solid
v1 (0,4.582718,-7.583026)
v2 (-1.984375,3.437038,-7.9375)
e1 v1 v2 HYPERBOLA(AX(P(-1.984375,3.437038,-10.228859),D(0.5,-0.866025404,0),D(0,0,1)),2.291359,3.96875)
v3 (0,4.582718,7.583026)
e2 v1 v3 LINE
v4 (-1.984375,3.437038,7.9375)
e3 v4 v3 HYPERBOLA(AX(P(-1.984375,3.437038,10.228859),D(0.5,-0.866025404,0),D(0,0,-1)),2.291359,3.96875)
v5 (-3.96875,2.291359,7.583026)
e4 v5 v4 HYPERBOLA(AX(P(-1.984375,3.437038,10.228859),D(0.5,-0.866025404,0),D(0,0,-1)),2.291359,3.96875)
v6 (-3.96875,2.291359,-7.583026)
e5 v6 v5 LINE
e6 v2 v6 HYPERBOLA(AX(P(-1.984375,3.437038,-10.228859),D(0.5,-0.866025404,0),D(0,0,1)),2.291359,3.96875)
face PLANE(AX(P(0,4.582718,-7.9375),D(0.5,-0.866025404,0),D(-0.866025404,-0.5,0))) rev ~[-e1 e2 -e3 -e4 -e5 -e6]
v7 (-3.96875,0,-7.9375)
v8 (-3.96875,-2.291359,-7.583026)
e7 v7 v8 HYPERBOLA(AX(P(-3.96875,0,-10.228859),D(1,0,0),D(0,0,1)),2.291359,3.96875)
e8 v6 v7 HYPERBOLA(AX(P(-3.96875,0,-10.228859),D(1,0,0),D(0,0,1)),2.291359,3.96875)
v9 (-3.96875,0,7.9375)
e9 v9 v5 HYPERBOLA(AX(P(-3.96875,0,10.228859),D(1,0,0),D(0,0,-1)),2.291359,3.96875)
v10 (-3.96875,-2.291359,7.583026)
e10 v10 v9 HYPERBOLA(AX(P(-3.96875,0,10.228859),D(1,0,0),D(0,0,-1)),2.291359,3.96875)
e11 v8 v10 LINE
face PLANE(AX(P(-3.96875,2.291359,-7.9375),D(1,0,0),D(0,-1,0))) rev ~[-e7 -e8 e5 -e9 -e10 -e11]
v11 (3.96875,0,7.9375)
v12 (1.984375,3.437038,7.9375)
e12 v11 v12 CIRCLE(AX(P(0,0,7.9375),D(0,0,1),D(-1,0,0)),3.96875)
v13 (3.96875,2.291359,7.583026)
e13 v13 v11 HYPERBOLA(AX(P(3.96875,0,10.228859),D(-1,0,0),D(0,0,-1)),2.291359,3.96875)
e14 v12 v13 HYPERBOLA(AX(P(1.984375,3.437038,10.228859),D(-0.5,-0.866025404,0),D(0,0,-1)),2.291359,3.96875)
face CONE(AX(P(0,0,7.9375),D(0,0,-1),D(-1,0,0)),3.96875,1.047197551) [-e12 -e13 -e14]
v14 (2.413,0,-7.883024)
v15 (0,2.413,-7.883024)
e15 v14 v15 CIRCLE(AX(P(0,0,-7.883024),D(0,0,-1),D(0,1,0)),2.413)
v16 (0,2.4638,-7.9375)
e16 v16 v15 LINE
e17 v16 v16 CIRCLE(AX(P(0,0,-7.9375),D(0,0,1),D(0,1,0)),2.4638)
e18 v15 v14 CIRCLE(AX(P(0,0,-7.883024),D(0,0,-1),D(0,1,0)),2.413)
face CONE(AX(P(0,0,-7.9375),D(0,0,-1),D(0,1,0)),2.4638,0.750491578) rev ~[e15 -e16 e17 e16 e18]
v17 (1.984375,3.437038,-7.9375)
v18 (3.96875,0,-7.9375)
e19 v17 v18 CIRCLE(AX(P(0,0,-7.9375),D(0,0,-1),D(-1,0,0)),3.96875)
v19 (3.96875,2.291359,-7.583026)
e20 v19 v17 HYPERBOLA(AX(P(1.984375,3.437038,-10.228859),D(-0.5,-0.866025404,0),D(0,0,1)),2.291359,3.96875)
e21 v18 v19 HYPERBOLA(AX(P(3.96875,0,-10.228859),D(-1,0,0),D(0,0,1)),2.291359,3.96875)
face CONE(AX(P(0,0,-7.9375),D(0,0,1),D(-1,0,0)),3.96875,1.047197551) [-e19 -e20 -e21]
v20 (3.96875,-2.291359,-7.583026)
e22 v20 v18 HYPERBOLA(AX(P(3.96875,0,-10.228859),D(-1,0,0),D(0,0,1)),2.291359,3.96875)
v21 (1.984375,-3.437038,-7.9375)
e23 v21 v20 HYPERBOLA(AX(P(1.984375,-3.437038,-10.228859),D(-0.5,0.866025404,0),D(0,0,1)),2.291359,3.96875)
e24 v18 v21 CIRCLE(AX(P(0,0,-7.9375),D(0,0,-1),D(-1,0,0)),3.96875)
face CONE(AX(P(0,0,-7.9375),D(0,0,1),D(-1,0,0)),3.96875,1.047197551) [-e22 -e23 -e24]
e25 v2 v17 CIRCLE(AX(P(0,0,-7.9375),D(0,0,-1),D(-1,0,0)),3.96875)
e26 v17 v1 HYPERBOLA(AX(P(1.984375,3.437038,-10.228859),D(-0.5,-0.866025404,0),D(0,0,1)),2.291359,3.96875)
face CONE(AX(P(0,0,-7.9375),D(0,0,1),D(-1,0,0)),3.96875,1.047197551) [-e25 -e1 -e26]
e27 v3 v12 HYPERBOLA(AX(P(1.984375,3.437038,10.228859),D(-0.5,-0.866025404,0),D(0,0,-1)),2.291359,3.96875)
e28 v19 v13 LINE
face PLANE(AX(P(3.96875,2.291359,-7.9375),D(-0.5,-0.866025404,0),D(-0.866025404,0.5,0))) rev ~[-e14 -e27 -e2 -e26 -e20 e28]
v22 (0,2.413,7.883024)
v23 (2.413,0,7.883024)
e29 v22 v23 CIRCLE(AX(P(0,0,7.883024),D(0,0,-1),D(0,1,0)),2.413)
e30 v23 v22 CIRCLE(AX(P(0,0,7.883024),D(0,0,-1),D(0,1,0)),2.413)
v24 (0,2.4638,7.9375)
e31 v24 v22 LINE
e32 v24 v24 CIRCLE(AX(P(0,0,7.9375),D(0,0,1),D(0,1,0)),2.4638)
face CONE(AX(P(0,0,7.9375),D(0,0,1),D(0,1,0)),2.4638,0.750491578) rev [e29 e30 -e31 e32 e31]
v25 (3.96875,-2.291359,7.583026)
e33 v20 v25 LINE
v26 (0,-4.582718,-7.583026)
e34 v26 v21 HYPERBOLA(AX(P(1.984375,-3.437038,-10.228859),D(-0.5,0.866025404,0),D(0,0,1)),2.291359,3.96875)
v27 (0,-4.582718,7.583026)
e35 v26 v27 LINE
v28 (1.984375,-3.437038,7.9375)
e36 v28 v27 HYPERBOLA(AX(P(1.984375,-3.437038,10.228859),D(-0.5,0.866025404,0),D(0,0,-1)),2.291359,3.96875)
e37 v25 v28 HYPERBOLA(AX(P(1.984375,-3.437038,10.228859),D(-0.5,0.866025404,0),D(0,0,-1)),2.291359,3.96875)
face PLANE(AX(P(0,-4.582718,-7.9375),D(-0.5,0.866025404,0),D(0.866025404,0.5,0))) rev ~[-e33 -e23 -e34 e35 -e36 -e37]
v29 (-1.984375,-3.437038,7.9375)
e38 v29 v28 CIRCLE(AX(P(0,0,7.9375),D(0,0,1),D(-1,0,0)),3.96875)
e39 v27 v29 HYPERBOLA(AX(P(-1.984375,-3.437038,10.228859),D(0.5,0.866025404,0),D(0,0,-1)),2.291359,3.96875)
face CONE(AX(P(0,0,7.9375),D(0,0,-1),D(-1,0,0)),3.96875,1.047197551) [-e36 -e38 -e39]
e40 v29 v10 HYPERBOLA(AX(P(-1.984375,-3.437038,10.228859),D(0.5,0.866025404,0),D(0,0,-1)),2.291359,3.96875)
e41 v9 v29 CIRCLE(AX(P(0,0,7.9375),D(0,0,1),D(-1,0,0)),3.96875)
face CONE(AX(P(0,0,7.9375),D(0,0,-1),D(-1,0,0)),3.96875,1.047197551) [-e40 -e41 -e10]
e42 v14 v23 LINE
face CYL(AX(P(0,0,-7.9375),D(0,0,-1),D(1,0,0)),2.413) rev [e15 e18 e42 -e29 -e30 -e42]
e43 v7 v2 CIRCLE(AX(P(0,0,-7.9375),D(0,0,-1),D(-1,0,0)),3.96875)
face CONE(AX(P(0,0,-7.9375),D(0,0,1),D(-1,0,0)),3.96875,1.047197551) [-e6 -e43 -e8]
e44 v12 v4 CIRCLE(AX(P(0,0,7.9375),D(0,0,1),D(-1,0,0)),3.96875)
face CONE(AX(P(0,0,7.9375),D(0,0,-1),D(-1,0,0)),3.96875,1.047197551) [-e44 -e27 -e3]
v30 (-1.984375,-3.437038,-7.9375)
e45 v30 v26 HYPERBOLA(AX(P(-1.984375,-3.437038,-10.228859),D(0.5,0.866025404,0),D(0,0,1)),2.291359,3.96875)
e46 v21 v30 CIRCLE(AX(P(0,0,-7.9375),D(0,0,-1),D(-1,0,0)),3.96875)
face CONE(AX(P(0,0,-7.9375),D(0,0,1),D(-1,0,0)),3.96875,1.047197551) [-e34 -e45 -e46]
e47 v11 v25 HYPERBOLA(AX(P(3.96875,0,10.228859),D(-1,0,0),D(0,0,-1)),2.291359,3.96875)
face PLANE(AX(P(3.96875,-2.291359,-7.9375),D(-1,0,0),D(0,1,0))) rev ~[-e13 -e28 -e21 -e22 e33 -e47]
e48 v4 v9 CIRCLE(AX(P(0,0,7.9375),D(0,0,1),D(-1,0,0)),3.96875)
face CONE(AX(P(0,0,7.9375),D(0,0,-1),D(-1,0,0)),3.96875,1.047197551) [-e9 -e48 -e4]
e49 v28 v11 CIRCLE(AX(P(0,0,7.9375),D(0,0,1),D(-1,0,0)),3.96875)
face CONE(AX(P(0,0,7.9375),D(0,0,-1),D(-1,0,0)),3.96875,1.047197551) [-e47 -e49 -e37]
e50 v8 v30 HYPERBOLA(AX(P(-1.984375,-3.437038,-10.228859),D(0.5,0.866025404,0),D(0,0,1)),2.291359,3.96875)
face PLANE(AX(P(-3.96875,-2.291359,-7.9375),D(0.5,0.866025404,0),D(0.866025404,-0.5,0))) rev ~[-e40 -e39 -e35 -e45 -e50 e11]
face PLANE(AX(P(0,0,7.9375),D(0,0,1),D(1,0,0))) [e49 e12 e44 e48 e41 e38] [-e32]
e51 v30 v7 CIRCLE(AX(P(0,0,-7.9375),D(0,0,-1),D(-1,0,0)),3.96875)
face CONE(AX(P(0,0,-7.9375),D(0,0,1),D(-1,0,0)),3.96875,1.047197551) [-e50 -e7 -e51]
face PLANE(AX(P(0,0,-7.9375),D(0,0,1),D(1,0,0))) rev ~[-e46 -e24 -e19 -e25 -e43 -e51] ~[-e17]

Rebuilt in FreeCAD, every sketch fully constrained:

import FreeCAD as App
import Part
import Sketcher
Q = App.Units.Quantity


def faces_at(feature, points):
    """Names of the faces that lie closest to the given points."""
    faces = feature.Shape.Faces
    near = lambda p: min(range(len(faces)), key=lambda i: faces[i].distToShape(Part.Vertex(*p))[0])
    return sorted({f"Face{near(p) + 1}" for p in points})


def add_polygon(sketch, points):
    """Adds a closed chain of lines whose ends are joined by coincident constraints."""
    first, n = sketch.GeometryCount, len(points)
    for a, b in zip(points, points[1:] + points[:1]):
        sketch.addGeometry(Part.LineSegment(App.Vector(*a, 0), App.Vector(*b, 0)), False)
    for i in range(n):
        sketch.addConstraint(Sketcher.Constraint("Coincident", first + i, 2, first + (i + 1) % n, 1))

doc = App.newDocument("Part")
params = doc.addObject("Spreadsheet::Sheet", "Params")
for row, (alias, value) in enumerate([
    ("sketch1_diameter", "0.19 in"),
    ("pad1_length", "0.3125 in"),
    ("pad1_length2", "0.3125 in"),
    ("sketch2_width", "0.097 in"),
    ("groove_angle", "360 deg"),
    ("sketch3_diameter", "0.3125 in"),
    ("pad2_length", "17.993172 mm"),
    ("draft_angle", "60 deg"),
    ("sketch4_diameter", "0.3125 in"),
    ("pad3_length", "17.993172 mm"),
    ("draft2_angle", "60 deg"),
], start=1):
    params.set(f"A{row}", alias)
    params.set(f"B{row}", "=" + value)
    params.setAlias(f"B{row}", alias)

body = doc.addObject("PartDesign::Body", "Body")

sketch1 = doc.addObject("Sketcher::SketchObject", "Sketch")
body.addObject(sketch1)
sketch1.AttachmentSupport = (doc.XY_Plane, [""])
sketch1.MapMode = "FlatFace"
add_polygon(sketch1, [(0, 4.582718), (-3.96875, 2.291359), (-3.96875, -2.291359), (0, -4.582718), (3.96875, -2.291359), (3.96875, 2.291359)])
sketch1.addGeometry(Part.Circle(App.Vector(0, 0, 0), App.Vector(0, 0, 1), 2.413), False)
sketch1.addConstraint(Sketcher.Constraint("Vertical", 1))
sketch1.addConstraint(Sketcher.Constraint("Vertical", 4))
sketch1.addConstraint(Sketcher.Constraint("Coincident", 6, 3, -1, 1))
sketch1.addConstraint(Sketcher.Constraint("Symmetric", 0, 2, 3, 2, -1, 1))
sketch1.addConstraint(Sketcher.Constraint("Symmetric", 2, 2, 5, 2, -1, 1))
sketch1.addConstraint(Sketcher.Constraint("PointOnObject", 2, 2, -2))
sketch1.addConstraint(Sketcher.Constraint("Parallel", 2, 5))
sketch1.addConstraint(Sketcher.Constraint("Horizontal", 1, 2, 3, 2))
sketch1.addConstraint(Sketcher.Constraint("Diameter", 6, Q("0.19 in")))
sketch1.addConstraint(Sketcher.Constraint("Angle", 0, Q("-150 deg")))
sketch1.addConstraint(Sketcher.Constraint("DistanceX", 0, 2, -1, 1, Q("0.15625 in")))
sketch1.addConstraint(Sketcher.Constraint("DistanceY", 1, 2, 1, 1, 4.582718))
sketch1.setExpression("Constraints[14]", "Params.sketch1_diameter")
pad1 = doc.addObject("PartDesign::Pad", "Pad")
body.addObject(pad1)
pad1.Profile = sketch1
pad1.Type = "TwoLengths"
pad1.setExpression("Length", "Params.pad1_length")
pad1.setExpression("Length2", "Params.pad1_length2")

sketch2 = doc.addObject("Sketcher::SketchObject", "Sketch001")
body.addObject(sketch2)
sketch2.AttachmentSupport = (doc.YZ_Plane, [""])
sketch2.MapMode = "FlatFace"
add_polygon(sketch2, [(0, -7.9375), (2.4638, -7.9375), (0, -5.295398)])
sketch2.addConstraint(Sketcher.Constraint("Horizontal", 0))
sketch2.addConstraint(Sketcher.Constraint("Vertical", 2))
sketch2.addConstraint(Sketcher.Constraint("PointOnObject", 1, 2, -2))
sketch2.addConstraint(Sketcher.Constraint("Angle", 1, Q("133 deg")))
sketch2.addConstraint(Sketcher.Constraint("DistanceX", 0, 1, 0, 2, Q("0.097 in")))
sketch2.addConstraint(Sketcher.Constraint("DistanceY", 0, 2, -1, 1, Q("0.3125 in")))
sketch2.setExpression("Constraints[7]", "Params.sketch2_width")
groove = doc.addObject("PartDesign::Groove", "Groove")
body.addObject(groove)
groove.Profile = sketch2
groove.ReferenceAxis = (sketch2, ["V_Axis"])
groove.setExpression("Angle", "Params.groove_angle")
body2 = doc.addObject("PartDesign::Body", "Body001")

sketch3 = doc.addObject("Sketcher::SketchObject", "Sketch002")
body2.addObject(sketch3)
sketch3.AttachmentSupport = (doc.getObject("XY_Plane001"), [""])
sketch3.MapMode = "FlatFace"
sketch3.AttachmentOffset = App.Placement(App.Vector(0, 0, -0.3125 * 25.4), App.Rotation())
add_polygon(sketch3, [(38.132, 38.746), (38.132, -38.746), (-38.132, -38.746), (-38.132, 38.746)])
sketch3.addGeometry(Part.Circle(App.Vector(0, 0, 0), App.Vector(0, 0, 1), 3.96875), False)
sketch3.addConstraint(Sketcher.Constraint("Vertical", 0))
sketch3.addConstraint(Sketcher.Constraint("Horizontal", 1))
sketch3.addConstraint(Sketcher.Constraint("Vertical", 2))
sketch3.addConstraint(Sketcher.Constraint("Horizontal", 3))
sketch3.addConstraint(Sketcher.Constraint("Coincident", 4, 3, -1, 1))
sketch3.addConstraint(Sketcher.Constraint("Symmetric", 0, 2, 2, 2, -1, 1))
sketch3.addConstraint(Sketcher.Constraint("Diameter", 4, Q("0.3125 in")))
sketch3.addConstraint(Sketcher.Constraint("DistanceX", 1, 2, 1, 1, 76.264))
sketch3.addConstraint(Sketcher.Constraint("DistanceY", 0, 2, 0, 1, 77.492))
sketch3.setExpression("Constraints[10]", "Params.sketch3_diameter")
pad2 = doc.addObject("PartDesign::Pad", "Pad001")
body2.addObject(pad2)
pad2.Profile = sketch3
pad2.setExpression("Length", "Params.pad2_length")
doc.recompute()

datumplane = doc.addObject("PartDesign::Plane", "DatumPlane")
body2.addObject(datumplane)
datumplane.AttachmentSupport = (doc.getObject("XY_Plane001"), [""])
datumplane.MapMode = "FlatFace"
datumplane.AttachmentOffset = App.Placement(App.Vector(0, 0, -0.3125 * 25.4), App.Rotation())
draft = doc.addObject("PartDesign::Draft", "Draft")
body2.addObject(draft)
draft.Base = (pad2, faces_at(pad2, [
    (0, -38.746, 1.059),
    (-38.132, 0, 1.059),
    (0, 38.746, 1.059),
    (38.132, 0, 1.059),
    (3.969, 0, 1.059),
]))
draft.NeutralPlane = (datumplane, [""])
draft.setExpression("Angle", "Params.draft_angle")
draft.Reversed = False
doc.recompute()

boolean = doc.addObject("PartDesign::Boolean", "Boolean")
body.addObject(boolean)
boolean.Type = "Cut"
boolean.addObjects([body2])
doc.recompute()

mirrored = doc.addObject("PartDesign::Mirrored", "Mirrored")
body.addObject(mirrored)
mirrored.Originals = [groove]
mirrored.MirrorPlane = (doc.XY_Plane, [""])
body.Tip = mirrored
body3 = doc.addObject("PartDesign::Body", "Body002")

sketch4 = doc.addObject("Sketcher::SketchObject", "Sketch003")
body3.addObject(sketch4)
sketch4.AttachmentSupport = (doc.getObject("XY_Plane002"), [""])
sketch4.MapMode = "FlatFace"
sketch4.AttachmentOffset = App.Placement(App.Vector(0, 0, 0.3125 * 25.4), App.Rotation())
add_polygon(sketch4, [(38.132, -38.746), (38.132, 38.746), (-38.132, 38.746), (-38.132, -38.746)])
sketch4.addGeometry(Part.Circle(App.Vector(0, 0, 0), App.Vector(0, 0, 1), 3.96875), False)
sketch4.addConstraint(Sketcher.Constraint("Vertical", 0))
sketch4.addConstraint(Sketcher.Constraint("Horizontal", 1))
sketch4.addConstraint(Sketcher.Constraint("Vertical", 2))
sketch4.addConstraint(Sketcher.Constraint("Horizontal", 3))
sketch4.addConstraint(Sketcher.Constraint("Coincident", 4, 3, -1, 1))
sketch4.addConstraint(Sketcher.Constraint("Symmetric", 0, 2, 2, 2, -1, 1))
sketch4.addConstraint(Sketcher.Constraint("Diameter", 4, Q("0.3125 in")))
sketch4.addConstraint(Sketcher.Constraint("DistanceX", 1, 2, 1, 1, 76.264))
sketch4.addConstraint(Sketcher.Constraint("DistanceY", 0, 1, 0, 2, 77.492))
sketch4.setExpression("Constraints[10]", "Params.sketch4_diameter")
pad3 = doc.addObject("PartDesign::Pad", "Pad002")
body3.addObject(pad3)
pad3.Profile = sketch4
pad3.setExpression("Length", "Params.pad3_length")
pad3.Reversed = True
doc.recompute()

datumplane2 = doc.addObject("PartDesign::Plane", "DatumPlane001")
body3.addObject(datumplane2)
datumplane2.AttachmentSupport = (doc.getObject("XY_Plane002"), [""])
datumplane2.MapMode = "FlatFace"
datumplane2.AttachmentOffset = App.Placement(App.Vector(0, 0, 0.3125 * 25.4), App.Rotation())
draft2 = doc.addObject("PartDesign::Draft", "Draft001")
body3.addObject(draft2)
draft2.Base = (pad3, faces_at(pad3, [
    (0, -38.746, -1.059),
    (-38.132, 0, -1.059),
    (0, 38.746, -1.059),
    (38.132, 0, -1.059),
    (3.969, 0, -1.059),
]))
draft2.NeutralPlane = (datumplane2, [""])
draft2.setExpression("Angle", "Params.draft2_angle")
draft2.Reversed = True
doc.recompute()

boolean2 = doc.addObject("PartDesign::Boolean", "Boolean001")
body.addObject(boolean2)
boolean2.Type = "Cut"
boolean2.addObjects([body3])

doc.recompute()
